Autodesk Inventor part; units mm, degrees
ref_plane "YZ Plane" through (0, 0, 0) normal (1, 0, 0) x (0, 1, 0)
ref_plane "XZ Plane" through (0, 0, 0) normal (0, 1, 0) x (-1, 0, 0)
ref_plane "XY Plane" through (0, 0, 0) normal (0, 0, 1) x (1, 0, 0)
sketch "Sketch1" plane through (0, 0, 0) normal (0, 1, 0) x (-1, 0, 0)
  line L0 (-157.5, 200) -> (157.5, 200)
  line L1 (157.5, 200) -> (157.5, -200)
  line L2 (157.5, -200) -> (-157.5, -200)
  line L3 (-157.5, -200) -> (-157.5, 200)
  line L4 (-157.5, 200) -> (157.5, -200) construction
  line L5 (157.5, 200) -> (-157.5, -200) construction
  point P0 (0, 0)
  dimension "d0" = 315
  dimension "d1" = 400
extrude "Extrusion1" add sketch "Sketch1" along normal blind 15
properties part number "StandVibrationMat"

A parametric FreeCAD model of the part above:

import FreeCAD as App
import Part
import Sketcher

V = App.Vector
Q = App.Units.Quantity

doc = App.newDocument("Part")
params = doc.addObject("Spreadsheet::Sheet", "Params")
for row, (alias, value) in enumerate([
    ("sketch1_width", "315 mm"),
    ("sketch1_height", "400 mm"),
    ("pad1_length", "15 mm"),
], start=1):
    params.set(f"A{row}", alias)
    params.set(f"B{row}", "=" + value)
    params.setAlias(f"B{row}", alias)

body = doc.addObject("PartDesign::Body", "Body")

sketch1 = doc.addObject("Sketcher::SketchObject", "Sketch")
body.addObject(sketch1)
sketch1.AttachmentSupport = (doc.XZ_Plane, [""])
sketch1.MapMode = "FlatFace"
sketch1.addGeometry([
    Part.LineSegment(V(-157.5, 200, 0), V(157.5, 200, 0)),
    Part.LineSegment(V(157.5, 200, 0), V(157.5, -200, 0)),
    Part.LineSegment(V(157.5, -200, 0), V(-157.5, -200, 0)),
    Part.LineSegment(V(-157.5, -200, 0), V(-157.5, 200, 0)),
], False)
sketch1.addConstraint([
    Sketcher.Constraint("Coincident", 0, 2, 1, 1),
    Sketcher.Constraint("Coincident", 1, 2, 2, 1),
    Sketcher.Constraint("Coincident", 2, 2, 3, 1),
    Sketcher.Constraint("Coincident", 3, 2, 0, 1),
    Sketcher.Constraint("Horizontal", 0),
    Sketcher.Constraint("Vertical", 1),
    Sketcher.Constraint("Horizontal", 2),
    Sketcher.Constraint("Vertical", 3),
    Sketcher.Constraint("Symmetric", 0, 2, 2, 2, -1, 1),
    Sketcher.Constraint("DistanceX", 0, 1, 0, 2, Q("315 mm")),
    Sketcher.Constraint("DistanceY", 1, 2, 1, 1, Q("400 mm")),
])
sketch1.setExpression("Constraints[9]", "Params.sketch1_width")
sketch1.setExpression("Constraints[10]", "Params.sketch1_height")
pad1 = doc.addObject("PartDesign::Pad", "Pad")
body.addObject(pad1)
pad1.Profile = sketch1
pad1.setExpression("Length", "Params.pad1_length")
pad1.Reversed = True

doc.recompute()
